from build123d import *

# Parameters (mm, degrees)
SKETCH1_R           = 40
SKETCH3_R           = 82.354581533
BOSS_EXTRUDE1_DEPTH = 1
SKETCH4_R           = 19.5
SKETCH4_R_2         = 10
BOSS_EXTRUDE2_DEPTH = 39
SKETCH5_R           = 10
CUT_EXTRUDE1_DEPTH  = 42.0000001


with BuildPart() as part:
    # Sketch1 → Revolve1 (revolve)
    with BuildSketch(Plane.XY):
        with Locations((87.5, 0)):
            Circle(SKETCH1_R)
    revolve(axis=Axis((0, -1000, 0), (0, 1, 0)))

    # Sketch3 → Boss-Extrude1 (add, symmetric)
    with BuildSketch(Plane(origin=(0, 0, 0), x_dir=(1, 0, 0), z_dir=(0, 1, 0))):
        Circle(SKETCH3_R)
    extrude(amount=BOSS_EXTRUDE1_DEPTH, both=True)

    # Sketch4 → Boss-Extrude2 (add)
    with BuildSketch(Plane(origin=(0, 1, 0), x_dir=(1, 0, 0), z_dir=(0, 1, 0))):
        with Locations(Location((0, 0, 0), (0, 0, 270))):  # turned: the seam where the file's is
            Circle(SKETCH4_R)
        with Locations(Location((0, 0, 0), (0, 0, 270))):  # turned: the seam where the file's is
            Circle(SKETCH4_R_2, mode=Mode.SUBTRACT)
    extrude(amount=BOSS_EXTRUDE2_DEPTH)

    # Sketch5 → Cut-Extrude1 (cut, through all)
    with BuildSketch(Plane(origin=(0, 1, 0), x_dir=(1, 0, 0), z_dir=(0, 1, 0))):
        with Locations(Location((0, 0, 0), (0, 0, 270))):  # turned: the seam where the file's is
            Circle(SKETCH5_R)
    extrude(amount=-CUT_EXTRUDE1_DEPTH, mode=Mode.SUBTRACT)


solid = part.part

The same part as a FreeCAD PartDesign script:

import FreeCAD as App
import Part
import Sketcher
from FreeCAD import Vector
Q = App.Units.Quantity

doc = App.newDocument("Part")
body = doc.addObject("PartDesign::Body", "Body")

# Sketch on XY plane
sketch1 = body.newObject("Sketcher::SketchObject", "Sketch")
sketch1.AttachmentSupport = (doc.getObject("XY_Plane"), [""])
sketch1.MapMode = "FlatFace"
sketch1.addGeometry(Part.Circle(Vector(87.5, 0, 0), Vector(0, 0, 1), 40), False)
sketch1.addConstraint([
    Sketcher.Constraint("PointOnObject", 0, 3, -1),
    Sketcher.Constraint("Diameter", 0, Q("80 mm")),
    Sketcher.Constraint("DistanceX", -1, 1, 0, 3, Q("87.5 mm")),
])
revolution = body.newObject("PartDesign::Revolution", "Revolution")
revolution.Profile = sketch1
revolution.ReferenceAxis = (sketch1, ["V_Axis"])
revolution.Angle = 360

# Sketch on XZ plane
sketch2 = body.newObject("Sketcher::SketchObject", "Sketch001")
sketch2.AttachmentSupport = (doc.getObject("XZ_Plane"), [""])
sketch2.MapMode = "FlatFace"
sketch2.addGeometry(Part.Circle(Vector(0, 0, 0), Vector(0, 0, 1), 82.354582), False)
sketch2.addConstraint([
    Sketcher.Constraint("Coincident", 0, 3, -1, 1),
    Sketcher.Constraint("Diameter", 0, Q("164.709163 mm")),
])
pad1 = body.newObject("PartDesign::Pad", "Pad")
pad1.Profile = sketch2
pad1.Length = 2
pad1.Midplane = True

# Sketch on XZ plane
sketch3 = body.newObject("Sketcher::SketchObject", "Sketch002")
sketch3.AttachmentSupport = (doc.getObject("XZ_Plane"), [""])
sketch3.MapMode = "FlatFace"
sketch3.AttachmentOffset = App.Placement(Vector(0, 0, -1), App.Rotation())
sketch3.addGeometry([
    Part.Circle(Vector(0, 0, 0), Vector(0, 0, 1), 19.5),
    Part.Circle(Vector(0, 0, 0), Vector(0, 0, 1), 10),
], False)
sketch3.addConstraint([
    Sketcher.Constraint("Coincident", 0, 3, -1, 1),
    Sketcher.Constraint("Coincident", 1, 3, -1, 1),
    Sketcher.Constraint("Diameter", 0, Q("39 mm")),
    Sketcher.Constraint("Diameter", 1, Q("20 mm")),
])
pad2 = body.newObject("PartDesign::Pad", "Pad001")
pad2.Profile = sketch3
pad2.Length = 39
pad2.Reversed = True

# Sketch on XZ plane
sketch4 = body.newObject("Sketcher::SketchObject", "Sketch003")
sketch4.AttachmentSupport = (doc.getObject("XZ_Plane"), [""])
sketch4.MapMode = "FlatFace"
sketch4.AttachmentOffset = App.Placement(Vector(0, 0, -1), App.Rotation())
sketch4.addGeometry(Part.Circle(Vector(0, 0, 0), Vector(0, 0, 1), 10), False)
sketch4.addConstraint([
    Sketcher.Constraint("Coincident", 0, 3, -1, 1),
    Sketcher.Constraint("Diameter", 0, Q("20 mm")),
])
pocket1 = body.newObject("PartDesign::Pocket", "Pocket")
pocket1.Profile = sketch4
pocket1.Type = "ThroughAll"
pocket1.Reversed = True

doc.recompute()
